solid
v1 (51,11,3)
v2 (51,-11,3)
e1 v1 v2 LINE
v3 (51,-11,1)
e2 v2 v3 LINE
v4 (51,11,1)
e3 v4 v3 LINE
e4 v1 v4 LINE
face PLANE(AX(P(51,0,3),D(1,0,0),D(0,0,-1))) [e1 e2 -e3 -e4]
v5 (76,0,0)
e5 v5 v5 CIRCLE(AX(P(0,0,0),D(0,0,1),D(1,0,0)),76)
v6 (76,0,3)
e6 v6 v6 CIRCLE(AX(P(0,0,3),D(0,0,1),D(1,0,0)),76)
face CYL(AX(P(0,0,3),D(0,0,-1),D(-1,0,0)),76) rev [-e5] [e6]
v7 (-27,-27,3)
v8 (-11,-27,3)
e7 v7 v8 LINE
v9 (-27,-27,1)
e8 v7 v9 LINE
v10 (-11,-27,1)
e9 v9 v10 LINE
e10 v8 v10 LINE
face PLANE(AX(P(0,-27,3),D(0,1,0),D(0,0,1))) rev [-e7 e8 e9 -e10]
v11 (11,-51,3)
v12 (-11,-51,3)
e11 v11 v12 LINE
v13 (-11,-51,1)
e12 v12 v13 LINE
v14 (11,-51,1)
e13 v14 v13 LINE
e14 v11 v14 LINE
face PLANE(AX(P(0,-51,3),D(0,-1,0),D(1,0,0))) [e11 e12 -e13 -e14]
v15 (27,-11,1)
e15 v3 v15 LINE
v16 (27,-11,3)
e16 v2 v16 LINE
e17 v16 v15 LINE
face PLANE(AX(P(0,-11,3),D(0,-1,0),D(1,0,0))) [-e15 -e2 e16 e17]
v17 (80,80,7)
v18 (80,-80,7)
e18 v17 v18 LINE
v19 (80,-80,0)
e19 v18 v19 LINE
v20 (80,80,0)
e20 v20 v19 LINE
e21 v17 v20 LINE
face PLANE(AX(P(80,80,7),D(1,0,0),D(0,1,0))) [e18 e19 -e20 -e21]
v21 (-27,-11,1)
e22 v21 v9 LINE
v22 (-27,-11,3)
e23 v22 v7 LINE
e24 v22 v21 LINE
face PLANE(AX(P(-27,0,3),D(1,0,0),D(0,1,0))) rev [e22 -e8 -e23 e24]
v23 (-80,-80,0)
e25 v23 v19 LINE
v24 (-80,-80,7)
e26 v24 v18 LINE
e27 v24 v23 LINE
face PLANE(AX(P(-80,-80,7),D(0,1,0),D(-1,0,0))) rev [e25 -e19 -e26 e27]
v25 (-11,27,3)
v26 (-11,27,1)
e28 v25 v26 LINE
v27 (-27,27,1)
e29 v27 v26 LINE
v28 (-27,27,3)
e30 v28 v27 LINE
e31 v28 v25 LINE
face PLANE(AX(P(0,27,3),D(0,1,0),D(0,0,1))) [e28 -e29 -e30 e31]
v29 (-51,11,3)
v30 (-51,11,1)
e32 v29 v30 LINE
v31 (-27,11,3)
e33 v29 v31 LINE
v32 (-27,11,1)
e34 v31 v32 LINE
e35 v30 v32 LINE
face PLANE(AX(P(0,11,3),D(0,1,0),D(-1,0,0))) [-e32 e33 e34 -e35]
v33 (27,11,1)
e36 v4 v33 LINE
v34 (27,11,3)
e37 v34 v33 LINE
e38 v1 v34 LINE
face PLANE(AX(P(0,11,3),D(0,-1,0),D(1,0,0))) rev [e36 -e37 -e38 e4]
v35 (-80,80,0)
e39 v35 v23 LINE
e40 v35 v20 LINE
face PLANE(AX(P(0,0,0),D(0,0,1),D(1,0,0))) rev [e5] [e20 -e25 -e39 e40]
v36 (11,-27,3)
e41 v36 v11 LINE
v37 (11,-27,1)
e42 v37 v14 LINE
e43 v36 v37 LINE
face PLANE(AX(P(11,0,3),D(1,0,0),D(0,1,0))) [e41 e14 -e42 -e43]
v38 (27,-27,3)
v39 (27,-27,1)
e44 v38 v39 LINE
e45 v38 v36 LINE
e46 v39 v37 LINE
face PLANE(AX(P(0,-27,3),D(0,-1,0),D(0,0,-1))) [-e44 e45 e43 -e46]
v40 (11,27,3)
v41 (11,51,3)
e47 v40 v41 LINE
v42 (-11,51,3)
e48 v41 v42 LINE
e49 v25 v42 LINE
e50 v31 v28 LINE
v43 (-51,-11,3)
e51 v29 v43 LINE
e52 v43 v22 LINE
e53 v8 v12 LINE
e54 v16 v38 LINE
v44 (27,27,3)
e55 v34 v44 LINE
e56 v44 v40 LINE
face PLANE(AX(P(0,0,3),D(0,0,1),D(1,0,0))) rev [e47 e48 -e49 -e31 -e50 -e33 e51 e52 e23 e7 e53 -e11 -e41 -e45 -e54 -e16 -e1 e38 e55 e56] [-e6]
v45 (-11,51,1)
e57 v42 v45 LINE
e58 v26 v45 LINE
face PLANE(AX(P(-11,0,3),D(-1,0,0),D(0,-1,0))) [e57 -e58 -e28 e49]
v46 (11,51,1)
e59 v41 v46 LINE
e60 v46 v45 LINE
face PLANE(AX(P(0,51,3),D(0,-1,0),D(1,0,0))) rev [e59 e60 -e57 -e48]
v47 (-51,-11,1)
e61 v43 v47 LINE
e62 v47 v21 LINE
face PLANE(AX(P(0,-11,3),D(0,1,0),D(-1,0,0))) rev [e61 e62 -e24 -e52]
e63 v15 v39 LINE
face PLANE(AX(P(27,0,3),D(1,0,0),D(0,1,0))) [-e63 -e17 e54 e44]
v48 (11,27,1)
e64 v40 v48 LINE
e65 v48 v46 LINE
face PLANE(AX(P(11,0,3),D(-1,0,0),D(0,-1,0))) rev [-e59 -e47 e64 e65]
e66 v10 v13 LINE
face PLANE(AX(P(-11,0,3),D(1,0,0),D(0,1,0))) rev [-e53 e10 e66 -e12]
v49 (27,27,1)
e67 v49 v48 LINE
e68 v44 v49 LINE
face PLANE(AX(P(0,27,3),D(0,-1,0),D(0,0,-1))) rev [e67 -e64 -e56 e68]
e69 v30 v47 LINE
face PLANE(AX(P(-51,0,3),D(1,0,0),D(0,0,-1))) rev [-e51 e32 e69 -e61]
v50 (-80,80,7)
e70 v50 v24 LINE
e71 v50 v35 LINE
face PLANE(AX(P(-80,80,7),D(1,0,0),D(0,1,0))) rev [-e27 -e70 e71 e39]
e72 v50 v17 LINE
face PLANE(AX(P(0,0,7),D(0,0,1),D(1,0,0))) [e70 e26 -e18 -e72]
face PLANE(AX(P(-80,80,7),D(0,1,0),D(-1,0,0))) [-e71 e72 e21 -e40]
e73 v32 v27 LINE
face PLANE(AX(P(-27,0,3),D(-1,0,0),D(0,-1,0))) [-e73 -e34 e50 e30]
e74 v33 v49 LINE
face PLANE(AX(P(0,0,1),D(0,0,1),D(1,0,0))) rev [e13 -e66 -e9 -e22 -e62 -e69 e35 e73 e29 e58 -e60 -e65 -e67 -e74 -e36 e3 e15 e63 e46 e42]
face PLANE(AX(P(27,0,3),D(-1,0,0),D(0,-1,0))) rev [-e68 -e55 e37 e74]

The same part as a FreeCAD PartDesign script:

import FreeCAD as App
import Part
import Sketcher

V = App.Vector
Q = App.Units.Quantity


def add_polygon(sketch, points):
    """Adds a closed chain of lines whose ends are joined by coincident constraints."""
    first, n = sketch.GeometryCount, len(points)
    for a, b in zip(points, points[1:] + points[:1]):
        sketch.addGeometry(Part.LineSegment(App.Vector(*a, 0), App.Vector(*b, 0)), False)
    for i in range(n):
        sketch.addConstraint(Sketcher.Constraint("Coincident", first + i, 2, first + (i + 1) % n, 1))

doc = App.newDocument("Part")
body = doc.addObject("PartDesign::Body", "Body")

# Sketch on XY plane
sketch1 = doc.addObject("Sketcher::SketchObject", "Sketch")
body.addObject(sketch1)
sketch1.AttachmentSupport = (doc.XY_Plane, [""])
sketch1.MapMode = "FlatFace"
add_polygon(sketch1, [(-80, 80), (-80, -80), (80, -80), (80, 80)])  # lines 0-3
sketch1.addConstraint([
    Sketcher.Constraint("Vertical", 0),
    Sketcher.Constraint("Horizontal", 1),
    Sketcher.Constraint("Vertical", 2),
    Sketcher.Constraint("Horizontal", 3),
    Sketcher.Constraint("Symmetric", 0, 2, 2, 2, -1, 1),
    Sketcher.Constraint("Equal", 3, 0),
    Sketcher.Constraint("DistanceX", 1, 1, 1, 2, Q("160 mm")),
])
pad1 = doc.addObject("PartDesign::Pad", "Pad")
body.addObject(pad1)
pad1.Profile = sketch1
pad1.Length = 7

# Sketch on XY plane
sketch2 = doc.addObject("Sketcher::SketchObject", "Sketch001")
body.addObject(sketch2)
sketch2.AttachmentSupport = (doc.XY_Plane, [""])
sketch2.MapMode = "FlatFace"
add_polygon(sketch2, [(-11, 51), (-11, 27), (-27, 27), (-27, 11), (-51, 11), (-51, -11), (-27, -11), (-27, -27), (-11, -27), (-11, -51), (11, -51), (11, -27), (27, -27), (27, -11), (51, -11), (51, 11), (27, 11), (27, 27), (11, 27), (11, 51)])  # lines 0-19
sketch2.addConstraint([
    Sketcher.Constraint("Vertical", 0),
    Sketcher.Constraint("Horizontal", 1),
    Sketcher.Constraint("Vertical", 2),
    Sketcher.Constraint("Horizontal", 3),
    Sketcher.Constraint("Vertical", 4),
    Sketcher.Constraint("Horizontal", 5),
    Sketcher.Constraint("Vertical", 6),
    Sketcher.Constraint("Horizontal", 7),
    Sketcher.Constraint("Vertical", 8),
    Sketcher.Constraint("Horizontal", 9),
    Sketcher.Constraint("Vertical", 10),
    Sketcher.Constraint("Horizontal", 11),
    Sketcher.Constraint("Vertical", 12),
    Sketcher.Constraint("Horizontal", 13),
    Sketcher.Constraint("Vertical", 14),
    Sketcher.Constraint("Horizontal", 15),
    Sketcher.Constraint("Vertical", 16),
    Sketcher.Constraint("Horizontal", 17),
    Sketcher.Constraint("Vertical", 18),
    Sketcher.Constraint("Horizontal", 19),
    Sketcher.Constraint("Symmetric", 0, 2, 10, 2, -1, 1),
    Sketcher.Constraint("Symmetric", 2, 2, 12, 2, -1, 1),
    Sketcher.Constraint("Symmetric", 4, 2, 14, 2, -1, 1),
    Sketcher.Constraint("Symmetric", 6, 2, 16, 2, -1, 1),
    Sketcher.Constraint("Symmetric", 8, 2, 18, 2, -1, 1),
    Sketcher.Constraint("Symmetric", 7, 2, 10, 2, -2),
    Sketcher.Constraint("Symmetric", 5, 2, 12, 2, -2),
    Sketcher.Constraint("Equal", 15, 0),
    Sketcher.Constraint("Equal", 17, 2),
    Sketcher.Constraint("Equal", 19, 4),
    Sketcher.Constraint("DistanceX", 1, 2, 1, 1, Q("16 mm")),
    Sketcher.Constraint("DistanceX", 3, 2, 3, 1, Q("24 mm")),
    Sketcher.Constraint("DistanceX", 9, 1, 9, 2, Q("22 mm")),
])
pocket1 = doc.addObject("PartDesign::Pocket", "Pocket")
body.addObject(pocket1)
pocket1.Profile = sketch2
pocket1.Length = 1
pocket1.Reversed = True

# Sketch on XY plane
sketch3 = doc.addObject("Sketcher::SketchObject", "Sketch002")
body.addObject(sketch3)
sketch3.AttachmentSupport = (doc.XY_Plane, [""])
sketch3.MapMode = "FlatFace"
sketch3.addGeometry(Part.Circle(V(0, 0, 0), V(0, 0, 1), 76), False)  # 0
add_polygon(sketch3, [(-27, 11), (-27, 27), (-11, 27), (-11, 51), (11, 51), (11, 27), (27, 27), (27, 11), (51, 11), (51, -11), (27, -11), (27, -27), (11, -27), (11, -51), (-11, -51), (-11, -27), (-27, -27), (-27, -11), (-51, -11), (-51, 11)])  # lines 1-20
sketch3.addConstraint([
    Sketcher.Constraint("Vertical", 1),
    Sketcher.Constraint("Horizontal", 2),
    Sketcher.Constraint("Vertical", 3),
    Sketcher.Constraint("Horizontal", 4),
    Sketcher.Constraint("Vertical", 5),
    Sketcher.Constraint("Horizontal", 6),
    Sketcher.Constraint("Vertical", 7),
    Sketcher.Constraint("Horizontal", 8),
    Sketcher.Constraint("Vertical", 9),
    Sketcher.Constraint("Horizontal", 10),
    Sketcher.Constraint("Vertical", 11),
    Sketcher.Constraint("Horizontal", 12),
    Sketcher.Constraint("Vertical", 13),
    Sketcher.Constraint("Horizontal", 14),
    Sketcher.Constraint("Vertical", 15),
    Sketcher.Constraint("Horizontal", 16),
    Sketcher.Constraint("Vertical", 17),
    Sketcher.Constraint("Horizontal", 18),
    Sketcher.Constraint("Vertical", 19),
    Sketcher.Constraint("Horizontal", 20),
    Sketcher.Constraint("Coincident", 0, 3, -1, 1),
    Sketcher.Constraint("Symmetric", 1, 2, 11, 2, -1, 1),
    Sketcher.Constraint("Symmetric", 3, 2, 13, 2, -1, 1),
    Sketcher.Constraint("Symmetric", 5, 2, 15, 2, -1, 1),
    Sketcher.Constraint("Symmetric", 7, 2, 17, 2, -1, 1),
    Sketcher.Constraint("Symmetric", 9, 2, 19, 2, -1, 1),
    Sketcher.Constraint("Symmetric", 2, 2, 5, 2, -2),
    Sketcher.Constraint("Symmetric", 10, 2, 17, 2, -2),
    Sketcher.Constraint("Equal", 16, 1),
    Sketcher.Constraint("Equal", 20, 3),
    Sketcher.Constraint("Equal", 14, 9),
    Sketcher.Constraint("Diameter", 0, Q("152 mm")),
    Sketcher.Constraint("DistanceX", 2, 1, 2, 2, Q("16 mm")),
    Sketcher.Constraint("DistanceX", 4, 1, 4, 2, Q("22 mm")),
    Sketcher.Constraint("DistanceX", 8, 1, 8, 2, Q("24 mm")),
])
pocket2 = doc.addObject("PartDesign::Pocket", "Pocket001")
body.addObject(pocket2)
pocket2.Profile = sketch3
pocket2.Length = 3
pocket2.Reversed = True

doc.recompute()
